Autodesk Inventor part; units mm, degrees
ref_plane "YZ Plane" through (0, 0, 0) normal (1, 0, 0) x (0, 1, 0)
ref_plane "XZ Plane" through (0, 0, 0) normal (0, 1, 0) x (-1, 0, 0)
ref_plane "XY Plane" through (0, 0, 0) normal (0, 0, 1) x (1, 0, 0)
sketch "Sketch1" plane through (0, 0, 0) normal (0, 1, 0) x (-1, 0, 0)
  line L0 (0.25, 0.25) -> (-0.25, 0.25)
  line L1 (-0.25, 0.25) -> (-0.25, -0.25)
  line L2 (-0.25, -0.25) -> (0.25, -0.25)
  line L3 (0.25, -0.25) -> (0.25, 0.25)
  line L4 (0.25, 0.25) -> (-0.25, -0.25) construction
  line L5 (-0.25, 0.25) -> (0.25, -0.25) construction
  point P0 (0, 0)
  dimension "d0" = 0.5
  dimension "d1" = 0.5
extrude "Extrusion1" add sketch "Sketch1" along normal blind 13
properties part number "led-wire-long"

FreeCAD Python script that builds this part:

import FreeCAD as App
import Part
import Sketcher
from FreeCAD import Vector
Q = App.Units.Quantity


def add_polygon(sketch, points):
    """Adds a closed chain of lines whose ends are joined by coincident constraints."""
    first, n = sketch.GeometryCount, len(points)
    for a, b in zip(points, points[1:] + points[:1]):
        sketch.addGeometry(Part.LineSegment(App.Vector(*a, 0), App.Vector(*b, 0)), False)
    for i in range(n):
        sketch.addConstraint(Sketcher.Constraint("Coincident", first + i, 2, first + (i + 1) % n, 1))

doc = App.newDocument("Part")
body = doc.addObject("PartDesign::Body", "Body")

sketch1 = body.newObject("Sketcher::SketchObject", "Sketch")
sketch1.AttachmentSupport = (doc.getObject("XZ_Plane"), [""])
sketch1.MapMode = "FlatFace"
add_polygon(sketch1, [(-0.2, -0.2), (-0.2, 0.2), (0.2, 0.2), (0.2, -0.2)])
sketch1.addConstraint(Sketcher.Constraint("Vertical", 0))
sketch1.addConstraint(Sketcher.Constraint("Horizontal", 1))
sketch1.addConstraint(Sketcher.Constraint("Vertical", 2))
sketch1.addConstraint(Sketcher.Constraint("Horizontal", 3))
sketch1.addConstraint(Sketcher.Constraint("Symmetric", 0, 2, 2, 2, -1, 1))
sketch1.addConstraint(Sketcher.Constraint("Equal", 3, 0))
sketch1.addConstraint(Sketcher.Constraint("DistanceX", 1, 1, 1, 2, Q("0.5 mm")))
pad1 = body.newObject("PartDesign::Pad", "Pad")
pad1.Profile = sketch1
pad1.Length = 13
pad1.Reversed = True

doc.recompute()
